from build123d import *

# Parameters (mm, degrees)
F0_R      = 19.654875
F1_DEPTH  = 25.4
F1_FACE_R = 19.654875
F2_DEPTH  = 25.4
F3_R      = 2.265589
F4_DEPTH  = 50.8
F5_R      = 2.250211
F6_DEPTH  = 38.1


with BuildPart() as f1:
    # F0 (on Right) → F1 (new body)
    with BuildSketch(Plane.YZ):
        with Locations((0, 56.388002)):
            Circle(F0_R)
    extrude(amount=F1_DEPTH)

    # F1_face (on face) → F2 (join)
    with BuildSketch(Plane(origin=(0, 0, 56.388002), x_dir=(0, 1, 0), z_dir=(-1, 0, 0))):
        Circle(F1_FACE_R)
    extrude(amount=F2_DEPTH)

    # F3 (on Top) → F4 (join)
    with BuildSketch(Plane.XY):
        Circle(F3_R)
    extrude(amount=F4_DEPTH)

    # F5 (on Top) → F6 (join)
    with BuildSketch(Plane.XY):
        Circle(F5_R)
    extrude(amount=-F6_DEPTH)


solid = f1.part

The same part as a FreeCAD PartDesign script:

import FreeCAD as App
import Part
import Sketcher

V = App.Vector
Q = App.Units.Quantity

doc = App.newDocument("Part")
body = doc.addObject("PartDesign::Body", "Body")

# Sketch on YZ plane
sketch1 = doc.addObject("Sketcher::SketchObject", "Sketch")
body.addObject(sketch1)
sketch1.AttachmentSupport = (doc.YZ_Plane, [""])
sketch1.MapMode = "FlatFace"
sketch1.addGeometry(Part.Circle(V(0, 56, 0), V(0, 0, 1), 20), False)
sketch1.addConstraint([
    Sketcher.Constraint("PointOnObject", 0, 3, -2),
    Sketcher.Constraint("DistanceY", -1, 1, 0, 3, Q("2.2200001 in")),
    Sketcher.Constraint("Diameter", 0, Q("39.30975 mm")),
])
pad1 = doc.addObject("PartDesign::Pad", "Pad")
body.addObject(pad1)
pad1.Profile = sketch1
pad1.Length = Q("1 in")

# Sketch on YZ plane
sketch2 = doc.addObject("Sketcher::SketchObject", "Sketch001")
body.addObject(sketch2)
sketch2.AttachmentSupport = (doc.YZ_Plane, [""])
sketch2.MapMode = "FlatFace"
sketch2.addGeometry(Part.Circle(V(0, 56, 0), V(0, 0, 1), 20), False)
sketch2.addConstraint([
    Sketcher.Constraint("PointOnObject", 0, 3, -2),
    Sketcher.Constraint("DistanceY", -1, 1, 0, 3, Q("2.2200001 in")),
    Sketcher.Constraint("Diameter", 0, Q("39.30975 mm")),
])
pad2 = doc.addObject("PartDesign::Pad", "Pad001")
body.addObject(pad2)
pad2.Profile = sketch2
pad2.Length = Q("1 in")
pad2.Reversed = True

# Sketch on XY plane
sketch3 = doc.addObject("Sketcher::SketchObject", "Sketch002")
body.addObject(sketch3)
sketch3.AttachmentSupport = (doc.XY_Plane, [""])
sketch3.MapMode = "FlatFace"
sketch3.addGeometry(Part.Circle(V(0, 0, 0), V(0, 0, 1), 2.3), False)
sketch3.addConstraint([
    Sketcher.Constraint("Coincident", 0, 3, -1, 1),
    Sketcher.Constraint("Diameter", 0, Q("4.531178 mm")),
])
pad3 = doc.addObject("PartDesign::Pad", "Pad002")
body.addObject(pad3)
pad3.Profile = sketch3
pad3.Length = Q("2 in")

# Sketch on XY plane
sketch4 = doc.addObject("Sketcher::SketchObject", "Sketch003")
body.addObject(sketch4)
sketch4.AttachmentSupport = (doc.XY_Plane, [""])
sketch4.MapMode = "FlatFace"
sketch4.addGeometry(Part.Circle(V(0, 0, 0), V(0, 0, 1), 2.3), False)
sketch4.addConstraint([
    Sketcher.Constraint("Coincident", 0, 3, -1, 1),
    Sketcher.Constraint("Diameter", 0, Q("4.500422 mm")),
])
pad4 = doc.addObject("PartDesign::Pad", "Pad003")
body.addObject(pad4)
pad4.Profile = sketch4
pad4.Length = Q("1.5 in")
pad4.Reversed = True

doc.recompute()
